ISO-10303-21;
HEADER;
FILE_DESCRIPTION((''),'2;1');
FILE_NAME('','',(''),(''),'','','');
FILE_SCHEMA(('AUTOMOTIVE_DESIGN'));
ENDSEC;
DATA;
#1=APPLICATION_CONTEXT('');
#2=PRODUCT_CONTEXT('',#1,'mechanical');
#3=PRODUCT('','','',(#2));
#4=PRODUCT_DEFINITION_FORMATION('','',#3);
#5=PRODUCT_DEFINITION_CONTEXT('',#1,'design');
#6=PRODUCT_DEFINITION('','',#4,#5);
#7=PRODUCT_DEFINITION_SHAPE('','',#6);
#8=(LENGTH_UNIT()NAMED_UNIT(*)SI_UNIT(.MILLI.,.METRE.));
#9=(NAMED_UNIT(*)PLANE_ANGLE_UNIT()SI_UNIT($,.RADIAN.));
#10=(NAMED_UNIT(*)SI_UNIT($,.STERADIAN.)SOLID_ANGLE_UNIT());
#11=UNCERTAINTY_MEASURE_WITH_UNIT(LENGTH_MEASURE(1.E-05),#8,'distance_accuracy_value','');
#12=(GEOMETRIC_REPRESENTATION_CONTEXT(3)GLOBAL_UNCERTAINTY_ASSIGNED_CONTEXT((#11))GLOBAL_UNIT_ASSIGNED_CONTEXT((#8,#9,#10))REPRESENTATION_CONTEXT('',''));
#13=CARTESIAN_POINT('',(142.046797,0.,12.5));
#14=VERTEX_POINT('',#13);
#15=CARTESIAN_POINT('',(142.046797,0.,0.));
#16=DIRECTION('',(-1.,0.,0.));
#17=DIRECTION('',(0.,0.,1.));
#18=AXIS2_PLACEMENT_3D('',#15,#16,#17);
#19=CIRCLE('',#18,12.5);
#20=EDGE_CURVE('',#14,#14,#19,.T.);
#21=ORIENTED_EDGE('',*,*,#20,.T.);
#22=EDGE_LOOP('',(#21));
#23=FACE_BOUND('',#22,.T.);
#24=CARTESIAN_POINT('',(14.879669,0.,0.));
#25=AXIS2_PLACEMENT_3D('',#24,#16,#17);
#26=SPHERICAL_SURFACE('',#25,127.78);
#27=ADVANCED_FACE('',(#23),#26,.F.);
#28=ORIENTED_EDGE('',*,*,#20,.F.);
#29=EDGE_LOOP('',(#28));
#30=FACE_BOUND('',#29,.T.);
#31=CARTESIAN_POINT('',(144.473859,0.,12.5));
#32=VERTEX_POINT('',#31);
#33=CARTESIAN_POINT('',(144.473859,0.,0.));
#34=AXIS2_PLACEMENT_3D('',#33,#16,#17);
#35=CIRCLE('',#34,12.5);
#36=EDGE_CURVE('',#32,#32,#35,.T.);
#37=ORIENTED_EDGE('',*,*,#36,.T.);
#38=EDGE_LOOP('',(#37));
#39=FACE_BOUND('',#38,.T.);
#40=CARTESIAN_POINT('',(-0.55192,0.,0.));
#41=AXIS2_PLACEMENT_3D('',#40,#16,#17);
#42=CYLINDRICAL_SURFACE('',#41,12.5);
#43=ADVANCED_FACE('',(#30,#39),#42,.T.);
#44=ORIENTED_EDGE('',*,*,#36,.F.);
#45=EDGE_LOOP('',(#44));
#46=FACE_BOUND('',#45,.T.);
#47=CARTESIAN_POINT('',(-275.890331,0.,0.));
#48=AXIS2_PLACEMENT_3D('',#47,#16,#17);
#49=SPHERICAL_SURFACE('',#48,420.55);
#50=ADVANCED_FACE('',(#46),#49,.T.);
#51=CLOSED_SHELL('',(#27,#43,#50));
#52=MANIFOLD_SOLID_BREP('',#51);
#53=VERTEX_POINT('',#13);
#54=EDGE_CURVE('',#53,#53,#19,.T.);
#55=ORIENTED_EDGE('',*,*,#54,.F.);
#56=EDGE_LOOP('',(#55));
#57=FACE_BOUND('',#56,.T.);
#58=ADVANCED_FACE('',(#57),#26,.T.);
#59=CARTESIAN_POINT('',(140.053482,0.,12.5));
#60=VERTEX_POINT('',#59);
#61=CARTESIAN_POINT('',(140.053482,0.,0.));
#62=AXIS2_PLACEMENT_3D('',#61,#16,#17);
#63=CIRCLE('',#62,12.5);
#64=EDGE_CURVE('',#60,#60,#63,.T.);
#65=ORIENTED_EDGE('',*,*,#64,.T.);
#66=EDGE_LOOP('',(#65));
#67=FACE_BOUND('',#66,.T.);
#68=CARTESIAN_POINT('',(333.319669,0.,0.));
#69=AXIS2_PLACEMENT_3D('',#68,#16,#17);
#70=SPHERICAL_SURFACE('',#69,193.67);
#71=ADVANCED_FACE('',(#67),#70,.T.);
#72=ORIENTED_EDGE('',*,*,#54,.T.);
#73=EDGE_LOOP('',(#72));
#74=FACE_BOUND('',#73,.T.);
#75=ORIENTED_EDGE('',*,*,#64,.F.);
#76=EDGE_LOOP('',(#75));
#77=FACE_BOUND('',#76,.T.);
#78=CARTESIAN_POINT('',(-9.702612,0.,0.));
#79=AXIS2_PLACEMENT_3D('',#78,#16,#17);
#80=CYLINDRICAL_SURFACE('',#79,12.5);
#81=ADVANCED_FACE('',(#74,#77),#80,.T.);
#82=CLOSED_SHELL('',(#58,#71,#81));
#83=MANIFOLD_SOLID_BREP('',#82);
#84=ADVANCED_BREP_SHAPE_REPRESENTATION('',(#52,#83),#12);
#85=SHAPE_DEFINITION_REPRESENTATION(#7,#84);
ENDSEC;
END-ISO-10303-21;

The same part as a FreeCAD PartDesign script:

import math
import FreeCAD as App
import Part
import Sketcher
from FreeCAD import Vector
Q = App.Units.Quantity

doc = App.newDocument("Part")
body = doc.addObject("PartDesign::Body", "Body")

# Sketch on XZ plane
sketch1 = doc.addObject("Sketcher::SketchObject", "Sketch")
body.addObject(sketch1)
sketch1.AttachmentSupport = (doc.XZ_Plane, [""])
sketch1.MapMode = "FlatFace"
sketch1.addGeometry([
    Part.ArcOfCircle(Part.Circle(Vector(333.3, 0, 0), Vector(0, 0, 1), 193.7), math.radians(180), math.radians(183.7)),
    Part.LineSegment(Vector(139.6, 0, 0), Vector(142.7, 0, 0)),
    Part.ArcOfCircle(Part.Circle(Vector(14.9, 0, 0), Vector(0, 0, 1), 127.8), math.radians(-5.61), math.radians(0)),
    Part.LineSegment(Vector(142, -12.5, 0), Vector(140.1, -12.5, 0)),
], False)
sketch1.addConstraint([
    Sketcher.Constraint("Coincident", 0, 1, 1, 1),
    Sketcher.Constraint("Coincident", 1, 2, 2, 2),
    Sketcher.Constraint("Coincident", 2, 1, 3, 1),
    Sketcher.Constraint("Coincident", 3, 2, 0, 2),
    Sketcher.Constraint("Horizontal", 1),
    Sketcher.Constraint("Horizontal", 3),
    Sketcher.Constraint("PointOnObject", 0, 3, -1),
    Sketcher.Constraint("PointOnObject", 2, 3, -1),
    Sketcher.Constraint("PointOnObject", 0, 1, -1),
    Sketcher.Constraint("Radius", 0, Q("193.67 mm")),
    Sketcher.Constraint("Radius", 2, Q("127.78 mm")),
    Sketcher.Constraint("DistanceX", 1, 1, 1, 2, Q("3.01 mm")),
    Sketcher.Constraint("DistanceY", 2, 1, -1, 1, Q("12.5 mm")),
    Sketcher.Constraint("DistanceX", -1, 1, 0, 3, Q("333.319669 mm")),
])
revolution = doc.addObject("PartDesign::Revolution", "Revolution")
body.addObject(revolution)
revolution.Profile = sketch1
revolution.ReferenceAxis = (sketch1, ["H_Axis"])
revolution.Angle = 360
body2 = doc.addObject("PartDesign::Body", "Body001")

# Sketch on XZ plane
sketch2 = doc.addObject("Sketcher::SketchObject", "Sketch001")
body2.addObject(sketch2)
sketch2.AttachmentSupport = (doc.getObject("XZ_Plane001"), [""])
sketch2.MapMode = "FlatFace"
sketch2.addGeometry([
    Part.LineSegment(Vector(144.5, -12.5, 0), Vector(142, -12.5, 0)),
    Part.ArcOfCircle(Part.Circle(Vector(14.9, 0, 0), Vector(0, 0, 1), 127.8), math.radians(-5.61), math.radians(0)),
    Part.LineSegment(Vector(142.7, 0, 0), Vector(144.7, 0, 0)),
    Part.ArcOfCircle(Part.Circle(Vector(-275.9, 0, 0), Vector(0, 0, 1), 420.6), math.radians(-1.7), math.radians(0)),
], False)
sketch2.addConstraint([
    Sketcher.Constraint("Coincident", 0, 2, 1, 1),
    Sketcher.Constraint("Coincident", 1, 2, 2, 1),
    Sketcher.Constraint("Coincident", 2, 2, 3, 2),
    Sketcher.Constraint("Coincident", 3, 1, 0, 1),
    Sketcher.Constraint("Horizontal", 0),
    Sketcher.Constraint("Horizontal", 2),
    Sketcher.Constraint("PointOnObject", 1, 3, -1),
    Sketcher.Constraint("PointOnObject", 3, 3, -1),
    Sketcher.Constraint("PointOnObject", 1, 2, -1),
    Sketcher.Constraint("DistanceX", 2, 1, 2, 2, Q("2 mm")),
    Sketcher.Constraint("Radius", 1, Q("127.78 mm")),
    Sketcher.Constraint("DistanceY", 0, 2, -1, 1, Q("12.5 mm")),
    Sketcher.Constraint("Radius", 3, Q("420.550002 mm")),
    Sketcher.Constraint("DistanceX", -1, 1, 1, 3, Q("14.879669 mm")),
])
revolution2 = doc.addObject("PartDesign::Revolution", "Revolution001")
body2.addObject(revolution2)
revolution2.Profile = sketch2
revolution2.ReferenceAxis = (sketch2, ["H_Axis"])
revolution2.Angle = 360

doc.recompute()
